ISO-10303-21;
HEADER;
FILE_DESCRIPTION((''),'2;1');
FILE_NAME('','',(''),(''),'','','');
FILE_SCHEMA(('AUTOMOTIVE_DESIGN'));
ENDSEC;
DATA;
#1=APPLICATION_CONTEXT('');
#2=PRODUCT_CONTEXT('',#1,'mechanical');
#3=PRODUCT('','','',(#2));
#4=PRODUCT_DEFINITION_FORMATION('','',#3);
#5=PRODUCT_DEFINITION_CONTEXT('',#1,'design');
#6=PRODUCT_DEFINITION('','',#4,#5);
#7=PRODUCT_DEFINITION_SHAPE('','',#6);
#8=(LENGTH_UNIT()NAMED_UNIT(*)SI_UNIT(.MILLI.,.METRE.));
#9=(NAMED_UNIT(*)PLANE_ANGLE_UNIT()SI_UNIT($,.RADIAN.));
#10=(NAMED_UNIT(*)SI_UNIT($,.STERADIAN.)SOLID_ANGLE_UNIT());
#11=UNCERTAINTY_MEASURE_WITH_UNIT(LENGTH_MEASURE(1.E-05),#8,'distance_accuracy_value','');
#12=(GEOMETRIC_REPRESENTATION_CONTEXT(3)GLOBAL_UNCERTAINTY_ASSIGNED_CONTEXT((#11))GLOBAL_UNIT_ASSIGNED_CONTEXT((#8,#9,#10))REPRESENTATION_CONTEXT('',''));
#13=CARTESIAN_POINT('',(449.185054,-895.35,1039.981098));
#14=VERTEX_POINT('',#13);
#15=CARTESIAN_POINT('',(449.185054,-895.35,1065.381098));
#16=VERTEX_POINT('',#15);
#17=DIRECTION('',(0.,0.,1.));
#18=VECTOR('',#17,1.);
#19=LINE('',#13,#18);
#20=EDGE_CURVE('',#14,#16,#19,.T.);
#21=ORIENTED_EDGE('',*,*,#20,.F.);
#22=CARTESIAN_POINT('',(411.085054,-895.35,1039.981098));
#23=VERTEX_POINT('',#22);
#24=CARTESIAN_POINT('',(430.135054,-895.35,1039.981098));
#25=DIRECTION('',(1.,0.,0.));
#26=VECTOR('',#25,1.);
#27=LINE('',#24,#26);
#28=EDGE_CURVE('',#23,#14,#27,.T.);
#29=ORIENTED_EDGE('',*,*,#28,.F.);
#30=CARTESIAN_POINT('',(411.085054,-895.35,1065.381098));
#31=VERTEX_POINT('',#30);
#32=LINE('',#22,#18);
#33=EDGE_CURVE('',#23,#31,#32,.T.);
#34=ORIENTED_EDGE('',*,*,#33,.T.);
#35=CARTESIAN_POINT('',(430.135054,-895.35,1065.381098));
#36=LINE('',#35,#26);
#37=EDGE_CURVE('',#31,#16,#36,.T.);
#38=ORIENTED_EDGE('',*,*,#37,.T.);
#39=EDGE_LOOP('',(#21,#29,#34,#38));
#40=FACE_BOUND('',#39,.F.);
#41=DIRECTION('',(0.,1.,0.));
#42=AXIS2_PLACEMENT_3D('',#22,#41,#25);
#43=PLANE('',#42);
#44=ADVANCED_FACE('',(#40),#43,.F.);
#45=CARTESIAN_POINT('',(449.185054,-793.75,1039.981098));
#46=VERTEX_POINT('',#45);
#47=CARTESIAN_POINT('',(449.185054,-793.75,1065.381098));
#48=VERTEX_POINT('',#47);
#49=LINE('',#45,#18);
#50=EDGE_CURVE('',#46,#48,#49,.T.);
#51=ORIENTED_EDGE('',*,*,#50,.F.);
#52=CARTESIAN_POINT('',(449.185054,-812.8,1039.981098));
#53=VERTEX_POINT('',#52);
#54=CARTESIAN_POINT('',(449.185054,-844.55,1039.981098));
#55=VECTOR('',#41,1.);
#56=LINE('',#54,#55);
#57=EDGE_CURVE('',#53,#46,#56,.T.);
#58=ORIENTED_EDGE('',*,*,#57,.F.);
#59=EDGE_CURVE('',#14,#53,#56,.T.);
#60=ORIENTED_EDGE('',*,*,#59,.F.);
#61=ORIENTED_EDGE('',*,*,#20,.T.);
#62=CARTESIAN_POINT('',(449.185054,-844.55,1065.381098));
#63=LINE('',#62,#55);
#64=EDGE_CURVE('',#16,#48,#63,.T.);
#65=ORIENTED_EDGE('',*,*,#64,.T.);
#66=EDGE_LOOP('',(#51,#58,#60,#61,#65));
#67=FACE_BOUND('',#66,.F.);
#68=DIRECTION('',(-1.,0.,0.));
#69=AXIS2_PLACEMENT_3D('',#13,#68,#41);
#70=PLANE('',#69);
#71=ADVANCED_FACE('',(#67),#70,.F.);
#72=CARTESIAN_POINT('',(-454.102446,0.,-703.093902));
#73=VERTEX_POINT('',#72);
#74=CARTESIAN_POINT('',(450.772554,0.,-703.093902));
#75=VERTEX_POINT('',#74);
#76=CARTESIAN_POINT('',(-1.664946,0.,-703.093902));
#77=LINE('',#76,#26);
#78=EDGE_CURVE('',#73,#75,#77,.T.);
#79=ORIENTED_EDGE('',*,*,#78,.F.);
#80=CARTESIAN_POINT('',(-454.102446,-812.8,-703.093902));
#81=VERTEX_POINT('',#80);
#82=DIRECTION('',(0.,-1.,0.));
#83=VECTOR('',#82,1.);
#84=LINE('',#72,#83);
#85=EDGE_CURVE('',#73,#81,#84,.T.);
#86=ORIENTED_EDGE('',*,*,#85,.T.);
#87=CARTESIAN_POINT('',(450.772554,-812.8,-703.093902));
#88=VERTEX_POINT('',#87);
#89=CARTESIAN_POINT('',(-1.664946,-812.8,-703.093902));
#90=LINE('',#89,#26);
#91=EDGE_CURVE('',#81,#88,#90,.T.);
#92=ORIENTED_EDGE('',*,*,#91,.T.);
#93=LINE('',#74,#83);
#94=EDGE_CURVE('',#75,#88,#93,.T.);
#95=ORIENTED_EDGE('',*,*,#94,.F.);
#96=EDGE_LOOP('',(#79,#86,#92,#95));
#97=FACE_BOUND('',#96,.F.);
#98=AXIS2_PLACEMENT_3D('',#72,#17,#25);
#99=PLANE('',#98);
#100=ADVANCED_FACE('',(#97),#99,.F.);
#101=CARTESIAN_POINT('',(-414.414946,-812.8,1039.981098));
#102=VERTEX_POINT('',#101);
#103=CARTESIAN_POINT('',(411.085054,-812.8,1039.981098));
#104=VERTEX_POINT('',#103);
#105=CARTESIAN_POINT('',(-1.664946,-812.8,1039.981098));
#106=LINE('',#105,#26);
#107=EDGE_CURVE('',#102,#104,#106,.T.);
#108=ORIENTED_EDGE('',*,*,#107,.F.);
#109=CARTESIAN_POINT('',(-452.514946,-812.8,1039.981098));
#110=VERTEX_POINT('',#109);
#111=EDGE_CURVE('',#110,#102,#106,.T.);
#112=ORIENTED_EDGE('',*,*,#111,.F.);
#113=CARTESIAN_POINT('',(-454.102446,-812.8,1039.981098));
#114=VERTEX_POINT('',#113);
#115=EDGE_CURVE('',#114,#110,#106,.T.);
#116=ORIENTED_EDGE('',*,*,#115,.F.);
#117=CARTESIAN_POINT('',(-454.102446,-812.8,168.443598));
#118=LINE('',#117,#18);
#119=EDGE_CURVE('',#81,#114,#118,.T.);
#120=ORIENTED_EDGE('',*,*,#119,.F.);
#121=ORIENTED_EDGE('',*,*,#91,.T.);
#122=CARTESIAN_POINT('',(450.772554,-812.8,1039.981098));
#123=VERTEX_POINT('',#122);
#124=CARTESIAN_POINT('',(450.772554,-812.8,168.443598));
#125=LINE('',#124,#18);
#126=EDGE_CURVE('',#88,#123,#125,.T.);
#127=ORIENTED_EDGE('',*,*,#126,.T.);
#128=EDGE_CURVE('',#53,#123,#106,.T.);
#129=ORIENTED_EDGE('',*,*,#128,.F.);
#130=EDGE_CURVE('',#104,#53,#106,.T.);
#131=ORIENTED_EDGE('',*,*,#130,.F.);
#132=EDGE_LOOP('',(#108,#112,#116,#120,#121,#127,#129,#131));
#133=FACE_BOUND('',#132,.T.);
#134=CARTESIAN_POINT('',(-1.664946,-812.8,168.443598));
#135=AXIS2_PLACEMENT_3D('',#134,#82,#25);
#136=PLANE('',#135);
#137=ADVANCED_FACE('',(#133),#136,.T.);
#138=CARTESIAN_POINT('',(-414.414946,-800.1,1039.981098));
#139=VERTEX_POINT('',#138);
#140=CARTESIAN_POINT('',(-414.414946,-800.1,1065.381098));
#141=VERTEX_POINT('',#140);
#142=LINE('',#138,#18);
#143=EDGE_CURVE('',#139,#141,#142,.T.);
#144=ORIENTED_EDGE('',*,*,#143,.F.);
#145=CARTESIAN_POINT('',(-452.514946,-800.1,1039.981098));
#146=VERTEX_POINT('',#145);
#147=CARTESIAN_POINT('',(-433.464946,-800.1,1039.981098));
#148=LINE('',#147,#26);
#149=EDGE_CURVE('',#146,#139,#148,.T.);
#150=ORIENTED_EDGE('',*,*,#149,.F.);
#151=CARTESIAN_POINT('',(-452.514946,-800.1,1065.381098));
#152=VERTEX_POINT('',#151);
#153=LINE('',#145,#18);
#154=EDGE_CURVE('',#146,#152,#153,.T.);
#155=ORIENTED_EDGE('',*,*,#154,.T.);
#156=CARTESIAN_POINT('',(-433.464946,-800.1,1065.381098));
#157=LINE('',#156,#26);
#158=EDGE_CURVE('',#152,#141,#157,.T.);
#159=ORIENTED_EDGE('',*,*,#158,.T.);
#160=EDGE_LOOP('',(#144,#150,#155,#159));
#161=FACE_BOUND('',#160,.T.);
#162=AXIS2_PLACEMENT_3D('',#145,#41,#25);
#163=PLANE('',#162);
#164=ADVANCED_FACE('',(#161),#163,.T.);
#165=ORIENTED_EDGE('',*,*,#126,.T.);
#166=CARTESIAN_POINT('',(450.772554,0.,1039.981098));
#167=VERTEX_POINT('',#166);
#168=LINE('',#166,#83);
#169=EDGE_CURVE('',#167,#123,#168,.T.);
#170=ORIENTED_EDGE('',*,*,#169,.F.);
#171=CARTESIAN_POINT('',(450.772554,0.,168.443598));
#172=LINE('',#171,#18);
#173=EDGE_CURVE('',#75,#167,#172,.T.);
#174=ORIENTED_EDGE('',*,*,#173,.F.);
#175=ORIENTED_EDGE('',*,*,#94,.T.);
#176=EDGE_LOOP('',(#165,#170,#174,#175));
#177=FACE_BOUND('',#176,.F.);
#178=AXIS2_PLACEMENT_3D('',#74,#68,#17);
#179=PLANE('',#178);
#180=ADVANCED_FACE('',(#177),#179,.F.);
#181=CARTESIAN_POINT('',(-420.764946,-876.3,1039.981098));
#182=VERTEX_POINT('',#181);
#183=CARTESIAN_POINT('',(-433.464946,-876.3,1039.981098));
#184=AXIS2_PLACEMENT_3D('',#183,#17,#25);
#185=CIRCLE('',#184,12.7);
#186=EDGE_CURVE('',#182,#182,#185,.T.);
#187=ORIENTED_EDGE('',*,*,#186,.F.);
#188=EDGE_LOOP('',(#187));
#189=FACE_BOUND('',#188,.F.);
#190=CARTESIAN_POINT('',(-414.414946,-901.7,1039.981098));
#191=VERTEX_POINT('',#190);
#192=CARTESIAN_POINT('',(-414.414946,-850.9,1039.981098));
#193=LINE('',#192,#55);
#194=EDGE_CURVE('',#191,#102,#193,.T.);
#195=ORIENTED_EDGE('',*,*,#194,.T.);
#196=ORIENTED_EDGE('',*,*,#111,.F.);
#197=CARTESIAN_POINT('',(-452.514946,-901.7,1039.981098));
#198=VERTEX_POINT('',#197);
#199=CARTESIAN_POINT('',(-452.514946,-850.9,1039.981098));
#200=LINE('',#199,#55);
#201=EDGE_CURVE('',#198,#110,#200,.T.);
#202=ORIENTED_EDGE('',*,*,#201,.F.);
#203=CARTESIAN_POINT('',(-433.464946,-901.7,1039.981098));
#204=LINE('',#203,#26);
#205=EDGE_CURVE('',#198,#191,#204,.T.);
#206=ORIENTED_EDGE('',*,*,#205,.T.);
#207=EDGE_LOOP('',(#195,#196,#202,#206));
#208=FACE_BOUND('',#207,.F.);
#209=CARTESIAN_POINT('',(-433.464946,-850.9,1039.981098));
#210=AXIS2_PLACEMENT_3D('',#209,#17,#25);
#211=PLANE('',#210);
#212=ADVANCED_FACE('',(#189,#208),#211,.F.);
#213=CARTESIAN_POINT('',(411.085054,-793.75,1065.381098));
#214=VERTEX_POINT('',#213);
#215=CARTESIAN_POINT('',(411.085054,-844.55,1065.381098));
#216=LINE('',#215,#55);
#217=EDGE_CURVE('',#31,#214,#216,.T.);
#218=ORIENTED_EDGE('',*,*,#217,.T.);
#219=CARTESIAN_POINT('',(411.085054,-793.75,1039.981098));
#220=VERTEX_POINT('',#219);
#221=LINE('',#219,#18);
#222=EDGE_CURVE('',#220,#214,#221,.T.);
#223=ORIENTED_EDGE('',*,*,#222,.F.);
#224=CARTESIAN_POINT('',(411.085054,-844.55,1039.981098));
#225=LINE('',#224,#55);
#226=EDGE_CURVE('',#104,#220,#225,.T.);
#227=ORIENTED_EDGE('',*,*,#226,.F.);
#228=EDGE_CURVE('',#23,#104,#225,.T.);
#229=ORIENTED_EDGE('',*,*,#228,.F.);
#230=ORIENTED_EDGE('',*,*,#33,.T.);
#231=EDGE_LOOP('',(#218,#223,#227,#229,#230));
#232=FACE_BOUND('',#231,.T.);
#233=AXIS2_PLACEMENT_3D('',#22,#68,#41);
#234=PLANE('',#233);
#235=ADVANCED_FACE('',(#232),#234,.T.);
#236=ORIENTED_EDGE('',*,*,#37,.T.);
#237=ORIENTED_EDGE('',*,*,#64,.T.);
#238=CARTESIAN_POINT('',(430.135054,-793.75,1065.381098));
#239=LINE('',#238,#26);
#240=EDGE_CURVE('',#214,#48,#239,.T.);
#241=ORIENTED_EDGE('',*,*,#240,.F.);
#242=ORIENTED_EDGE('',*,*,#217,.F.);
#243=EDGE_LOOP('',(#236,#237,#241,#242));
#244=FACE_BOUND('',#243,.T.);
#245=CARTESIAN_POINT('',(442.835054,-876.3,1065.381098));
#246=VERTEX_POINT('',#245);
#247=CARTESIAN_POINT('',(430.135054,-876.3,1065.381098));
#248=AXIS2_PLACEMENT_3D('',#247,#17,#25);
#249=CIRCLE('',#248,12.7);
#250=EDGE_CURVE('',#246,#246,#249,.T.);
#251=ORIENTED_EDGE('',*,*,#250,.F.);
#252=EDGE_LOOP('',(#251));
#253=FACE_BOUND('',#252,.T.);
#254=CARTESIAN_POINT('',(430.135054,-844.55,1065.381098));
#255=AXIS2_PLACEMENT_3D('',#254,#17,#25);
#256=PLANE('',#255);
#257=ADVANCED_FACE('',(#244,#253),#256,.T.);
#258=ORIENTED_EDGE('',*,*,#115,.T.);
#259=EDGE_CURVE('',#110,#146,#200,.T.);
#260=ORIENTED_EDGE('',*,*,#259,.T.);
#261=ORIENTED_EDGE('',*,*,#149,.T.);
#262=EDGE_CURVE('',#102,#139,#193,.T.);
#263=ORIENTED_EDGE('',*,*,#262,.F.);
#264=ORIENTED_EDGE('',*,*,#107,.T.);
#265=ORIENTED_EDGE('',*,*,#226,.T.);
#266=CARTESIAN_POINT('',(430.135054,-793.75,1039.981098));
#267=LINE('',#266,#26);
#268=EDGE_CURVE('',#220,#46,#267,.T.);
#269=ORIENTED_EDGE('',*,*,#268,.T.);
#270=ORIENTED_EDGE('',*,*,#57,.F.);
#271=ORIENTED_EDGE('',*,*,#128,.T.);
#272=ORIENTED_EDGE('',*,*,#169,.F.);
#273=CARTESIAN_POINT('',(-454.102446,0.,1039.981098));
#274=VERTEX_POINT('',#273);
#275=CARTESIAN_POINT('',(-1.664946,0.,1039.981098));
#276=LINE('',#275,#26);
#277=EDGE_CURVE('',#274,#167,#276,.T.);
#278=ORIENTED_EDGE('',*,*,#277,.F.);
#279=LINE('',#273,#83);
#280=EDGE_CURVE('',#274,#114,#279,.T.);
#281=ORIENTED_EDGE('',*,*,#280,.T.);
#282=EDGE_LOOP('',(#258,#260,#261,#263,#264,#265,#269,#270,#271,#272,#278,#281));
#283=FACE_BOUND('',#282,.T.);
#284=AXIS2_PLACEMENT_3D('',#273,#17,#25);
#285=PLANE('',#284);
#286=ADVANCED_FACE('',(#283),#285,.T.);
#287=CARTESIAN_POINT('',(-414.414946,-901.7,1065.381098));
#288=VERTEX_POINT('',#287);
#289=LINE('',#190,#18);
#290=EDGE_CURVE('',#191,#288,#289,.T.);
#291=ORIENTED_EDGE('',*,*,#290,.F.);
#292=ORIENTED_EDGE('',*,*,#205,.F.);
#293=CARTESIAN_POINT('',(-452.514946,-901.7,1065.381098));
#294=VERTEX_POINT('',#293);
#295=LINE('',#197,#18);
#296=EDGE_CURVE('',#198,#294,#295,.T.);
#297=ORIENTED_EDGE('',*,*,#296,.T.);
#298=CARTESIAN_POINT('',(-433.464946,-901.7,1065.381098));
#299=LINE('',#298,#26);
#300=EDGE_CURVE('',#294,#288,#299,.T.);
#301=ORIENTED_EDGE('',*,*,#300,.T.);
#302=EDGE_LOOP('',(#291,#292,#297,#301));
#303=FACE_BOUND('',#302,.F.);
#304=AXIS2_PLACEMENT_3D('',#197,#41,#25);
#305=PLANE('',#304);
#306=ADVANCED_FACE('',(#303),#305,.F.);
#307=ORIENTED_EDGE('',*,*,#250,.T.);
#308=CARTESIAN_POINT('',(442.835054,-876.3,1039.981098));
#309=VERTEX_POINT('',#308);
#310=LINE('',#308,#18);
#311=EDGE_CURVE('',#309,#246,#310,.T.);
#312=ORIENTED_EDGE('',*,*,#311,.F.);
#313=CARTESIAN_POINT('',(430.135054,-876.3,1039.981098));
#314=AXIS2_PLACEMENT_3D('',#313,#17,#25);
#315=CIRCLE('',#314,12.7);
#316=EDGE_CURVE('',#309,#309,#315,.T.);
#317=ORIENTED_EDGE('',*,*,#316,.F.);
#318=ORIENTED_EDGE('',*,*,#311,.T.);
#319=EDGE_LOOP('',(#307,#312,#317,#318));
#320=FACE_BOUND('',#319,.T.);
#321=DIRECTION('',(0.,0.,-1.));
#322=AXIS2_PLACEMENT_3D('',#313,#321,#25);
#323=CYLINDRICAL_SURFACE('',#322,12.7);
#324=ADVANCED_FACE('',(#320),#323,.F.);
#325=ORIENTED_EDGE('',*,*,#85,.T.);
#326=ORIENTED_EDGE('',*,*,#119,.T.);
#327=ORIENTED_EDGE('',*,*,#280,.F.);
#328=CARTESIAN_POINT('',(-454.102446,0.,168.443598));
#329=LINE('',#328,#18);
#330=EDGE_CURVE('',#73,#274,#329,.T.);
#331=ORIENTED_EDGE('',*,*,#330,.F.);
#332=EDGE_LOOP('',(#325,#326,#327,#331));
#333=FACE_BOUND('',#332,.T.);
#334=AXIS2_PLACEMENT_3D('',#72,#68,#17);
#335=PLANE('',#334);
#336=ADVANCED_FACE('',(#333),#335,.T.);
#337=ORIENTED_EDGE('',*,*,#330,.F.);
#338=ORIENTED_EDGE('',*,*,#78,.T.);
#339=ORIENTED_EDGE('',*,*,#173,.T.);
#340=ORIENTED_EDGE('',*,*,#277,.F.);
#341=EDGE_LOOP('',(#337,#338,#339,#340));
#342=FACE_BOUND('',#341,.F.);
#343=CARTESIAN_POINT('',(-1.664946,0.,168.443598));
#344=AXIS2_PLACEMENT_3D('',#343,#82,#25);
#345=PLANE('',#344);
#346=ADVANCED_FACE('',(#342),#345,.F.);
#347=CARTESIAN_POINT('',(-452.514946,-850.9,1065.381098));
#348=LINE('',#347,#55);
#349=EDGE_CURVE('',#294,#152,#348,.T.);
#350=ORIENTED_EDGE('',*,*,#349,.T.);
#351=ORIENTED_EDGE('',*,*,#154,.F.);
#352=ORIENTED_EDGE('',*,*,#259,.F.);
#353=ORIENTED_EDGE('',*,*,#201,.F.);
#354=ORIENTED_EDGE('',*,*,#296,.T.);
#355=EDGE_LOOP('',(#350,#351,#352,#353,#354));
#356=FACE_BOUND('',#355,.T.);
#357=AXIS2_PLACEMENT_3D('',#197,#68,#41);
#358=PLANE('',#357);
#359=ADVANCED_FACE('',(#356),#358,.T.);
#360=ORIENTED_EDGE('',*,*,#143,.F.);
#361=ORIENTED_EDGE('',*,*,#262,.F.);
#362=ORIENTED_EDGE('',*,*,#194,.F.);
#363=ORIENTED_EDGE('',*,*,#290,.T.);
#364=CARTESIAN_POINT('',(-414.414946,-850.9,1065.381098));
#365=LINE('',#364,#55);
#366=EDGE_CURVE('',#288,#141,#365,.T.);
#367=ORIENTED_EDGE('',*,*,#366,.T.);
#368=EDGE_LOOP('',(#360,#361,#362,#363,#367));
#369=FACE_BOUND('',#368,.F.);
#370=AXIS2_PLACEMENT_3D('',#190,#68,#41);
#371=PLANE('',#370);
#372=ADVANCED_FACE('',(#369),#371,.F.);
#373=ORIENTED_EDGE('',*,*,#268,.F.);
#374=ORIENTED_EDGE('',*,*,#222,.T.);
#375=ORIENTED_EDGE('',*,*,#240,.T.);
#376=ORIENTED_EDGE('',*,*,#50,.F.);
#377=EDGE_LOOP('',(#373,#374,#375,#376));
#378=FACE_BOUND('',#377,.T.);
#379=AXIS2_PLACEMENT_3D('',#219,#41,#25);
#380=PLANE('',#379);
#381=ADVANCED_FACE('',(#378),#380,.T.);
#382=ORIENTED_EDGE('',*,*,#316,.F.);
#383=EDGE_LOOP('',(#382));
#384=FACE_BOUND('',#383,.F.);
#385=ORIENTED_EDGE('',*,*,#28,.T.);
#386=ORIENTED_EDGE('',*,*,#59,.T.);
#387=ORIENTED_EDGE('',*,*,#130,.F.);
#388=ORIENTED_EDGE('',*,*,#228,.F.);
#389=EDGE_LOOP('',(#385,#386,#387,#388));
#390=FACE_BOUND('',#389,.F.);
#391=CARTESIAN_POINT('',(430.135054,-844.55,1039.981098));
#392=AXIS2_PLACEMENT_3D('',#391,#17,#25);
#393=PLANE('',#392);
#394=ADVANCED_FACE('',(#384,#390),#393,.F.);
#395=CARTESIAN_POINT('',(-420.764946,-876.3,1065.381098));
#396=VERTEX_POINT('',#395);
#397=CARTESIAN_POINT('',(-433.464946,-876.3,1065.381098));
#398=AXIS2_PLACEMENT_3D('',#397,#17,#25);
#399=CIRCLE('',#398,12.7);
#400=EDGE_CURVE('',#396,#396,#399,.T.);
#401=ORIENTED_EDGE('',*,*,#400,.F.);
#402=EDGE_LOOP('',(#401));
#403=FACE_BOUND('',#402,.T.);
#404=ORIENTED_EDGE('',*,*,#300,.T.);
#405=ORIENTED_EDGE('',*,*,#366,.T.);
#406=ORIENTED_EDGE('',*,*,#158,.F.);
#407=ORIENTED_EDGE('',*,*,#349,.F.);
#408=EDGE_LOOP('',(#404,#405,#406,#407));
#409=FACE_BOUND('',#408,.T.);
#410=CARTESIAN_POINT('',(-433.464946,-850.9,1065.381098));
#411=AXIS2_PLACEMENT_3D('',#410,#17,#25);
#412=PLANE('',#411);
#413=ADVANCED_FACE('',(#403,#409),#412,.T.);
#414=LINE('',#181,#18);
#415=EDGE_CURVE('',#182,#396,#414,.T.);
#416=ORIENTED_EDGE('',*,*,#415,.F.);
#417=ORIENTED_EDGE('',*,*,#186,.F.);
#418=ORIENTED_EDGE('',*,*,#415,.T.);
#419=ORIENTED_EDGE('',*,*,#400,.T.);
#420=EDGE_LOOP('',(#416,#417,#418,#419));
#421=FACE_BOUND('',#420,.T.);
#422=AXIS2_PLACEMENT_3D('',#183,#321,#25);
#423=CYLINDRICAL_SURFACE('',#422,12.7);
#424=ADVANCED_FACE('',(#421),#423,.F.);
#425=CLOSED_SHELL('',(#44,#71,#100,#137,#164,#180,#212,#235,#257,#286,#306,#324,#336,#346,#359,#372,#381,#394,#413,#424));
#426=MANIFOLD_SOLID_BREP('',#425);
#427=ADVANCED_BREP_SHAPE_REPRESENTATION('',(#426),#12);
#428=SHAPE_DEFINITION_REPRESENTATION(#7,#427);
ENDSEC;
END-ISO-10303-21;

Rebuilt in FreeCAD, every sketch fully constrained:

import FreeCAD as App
import Part
import Sketcher
Q = App.Units.Quantity

doc = App.newDocument("Part")
body = doc.addObject("PartDesign::Body", "Body")

# Sketch on XZ plane
sketch1 = doc.addObject("Sketcher::SketchObject", "Sketch")
body.addObject(sketch1)
sketch1.AttachmentSupport = (doc.XZ_Plane, [""])
sketch1.MapMode = "FlatFace"
sketch1.addGeometry(Part.LineSegment(App.Vector(-454, 1040, 0), App.Vector(-454, -703, 0)), False)
sketch1.addGeometry(Part.LineSegment(App.Vector(-454, -703, 0), App.Vector(451, -703, 0)), False)
sketch1.addGeometry(Part.LineSegment(App.Vector(451, -703, 0), App.Vector(451, 1040, 0)), False)
sketch1.addGeometry(Part.LineSegment(App.Vector(451, 1040, 0), App.Vector(-454, 1040, 0)), False)
sketch1.addConstraint(Sketcher.Constraint("Coincident", 0, 2, 1, 1))
sketch1.addConstraint(Sketcher.Constraint("Coincident", 1, 2, 2, 1))
sketch1.addConstraint(Sketcher.Constraint("Coincident", 2, 2, 3, 1))
sketch1.addConstraint(Sketcher.Constraint("Coincident", 3, 2, 0, 1))
sketch1.addConstraint(Sketcher.Constraint("Vertical", 0))
sketch1.addConstraint(Sketcher.Constraint("Horizontal", 1))
sketch1.addConstraint(Sketcher.Constraint("Vertical", 2))
sketch1.addConstraint(Sketcher.Constraint("Horizontal", 3))
sketch1.addConstraint(Sketcher.Constraint("DistanceX", 1, 1, 1, 2, Q("35.625 in")))
sketch1.addConstraint(Sketcher.Constraint("DistanceY", 0, 2, 0, 1, Q("68.625 in")))
sketch1.addConstraint(Sketcher.Constraint("DistanceY", 0, 2, -1, 1, 703.093902))
sketch1.addConstraint(Sketcher.Constraint("DistanceX", 0, 2, -1, 1, 454.102446))
pad1 = doc.addObject("PartDesign::Pad", "Pad")
body.addObject(pad1)
pad1.Profile = sketch1
pad1.Length = Q("32 in")

# Sketch on XY plane
sketch2 = doc.addObject("Sketcher::SketchObject", "Sketch001")
body.addObject(sketch2)
sketch2.AttachmentSupport = (doc.XY_Plane, [""])
sketch2.MapMode = "FlatFace"
sketch2.AttachmentOffset = App.Placement(App.Vector(0, 0, 1039.981098), App.Rotation())
sketch2.addGeometry(Part.LineSegment(App.Vector(-453, -800, 0), App.Vector(-453, -902, 0)), False)
sketch2.addGeometry(Part.LineSegment(App.Vector(-453, -902, 0), App.Vector(-414, -902, 0)), False)
sketch2.addGeometry(Part.LineSegment(App.Vector(-414, -902, 0), App.Vector(-414, -800, 0)), False)
sketch2.addGeometry(Part.LineSegment(App.Vector(-414, -800, 0), App.Vector(-453, -800, 0)), False)
sketch2.addGeometry(Part.Circle(App.Vector(-433, -876, 0), App.Vector(0, 0, 1), 13), False)
sketch2.addGeometry(Part.LineSegment(App.Vector(411, -794, 0), App.Vector(411, -895, 0)), False)
sketch2.addGeometry(Part.LineSegment(App.Vector(411, -895, 0), App.Vector(449, -895, 0)), False)
sketch2.addGeometry(Part.LineSegment(App.Vector(449, -895, 0), App.Vector(449, -794, 0)), False)
sketch2.addGeometry(Part.LineSegment(App.Vector(449, -794, 0), App.Vector(411, -794, 0)), False)
sketch2.addGeometry(Part.Circle(App.Vector(430, -876, 0), App.Vector(0, 0, 1), 13), False)
sketch2.addConstraint(Sketcher.Constraint("Coincident", 0, 2, 1, 1))
sketch2.addConstraint(Sketcher.Constraint("Coincident", 1, 2, 2, 1))
sketch2.addConstraint(Sketcher.Constraint("Coincident", 2, 2, 3, 1))
sketch2.addConstraint(Sketcher.Constraint("Coincident", 3, 2, 0, 1))
sketch2.addConstraint(Sketcher.Constraint("Coincident", 5, 2, 6, 1))
sketch2.addConstraint(Sketcher.Constraint("Coincident", 6, 2, 7, 1))
sketch2.addConstraint(Sketcher.Constraint("Coincident", 7, 2, 8, 1))
sketch2.addConstraint(Sketcher.Constraint("Coincident", 8, 2, 5, 1))
sketch2.addConstraint(Sketcher.Constraint("Vertical", 0))
sketch2.addConstraint(Sketcher.Constraint("Horizontal", 1))
sketch2.addConstraint(Sketcher.Constraint("Vertical", 2))
sketch2.addConstraint(Sketcher.Constraint("Horizontal", 3))
sketch2.addConstraint(Sketcher.Constraint("Vertical", 5))
sketch2.addConstraint(Sketcher.Constraint("Horizontal", 6))
sketch2.addConstraint(Sketcher.Constraint("Vertical", 7))
sketch2.addConstraint(Sketcher.Constraint("Horizontal", 8))
sketch2.addConstraint(Sketcher.Constraint("Equal", 4, 9))
sketch2.addConstraint(Sketcher.Constraint("Horizontal", 4, 3, 9, 3))
sketch2.addConstraint(Sketcher.Constraint("Equal", 3, 6))
sketch2.addConstraint(Sketcher.Constraint("Equal", 2, 5))
sketch2.addConstraint(Sketcher.Constraint("Diameter", 4, Q("1 in")))
sketch2.addConstraint(Sketcher.Constraint("DistanceY", 0, 2, 0, 1, Q("4 in")))
sketch2.addConstraint(Sketcher.Constraint("DistanceX", 1, 1, 1, 2, Q("1.5 in")))
sketch2.addConstraint(Sketcher.Constraint("DistanceX", 4, 3, 9, 3, Q("34 in")))
sketch2.addConstraint(Sketcher.Constraint("DistanceY", 0, 2, 4, 3, Q("1 in")))
sketch2.addConstraint(Sketcher.Constraint("DistanceX", 0, 2, 5, 2, Q("34 in")))
sketch2.addConstraint(Sketcher.Constraint("DistanceY", 4, 3, -1, 1, Q("34.5 in")))
sketch2.addConstraint(Sketcher.Constraint("DistanceY", 5, 2, -1, 1, Q("35.25 in")))
sketch2.addConstraint(Sketcher.Constraint("DistanceX", 0, 2, 4, 3, Q("0.75 in")))
sketch2.addConstraint(Sketcher.Constraint("DistanceX", 4, 3, -1, 1, 433.464946))
pad2 = doc.addObject("PartDesign::Pad", "Pad001")
body.addObject(pad2)
pad2.Profile = sketch2
pad2.Length = Q("1 in")

doc.recompute()
